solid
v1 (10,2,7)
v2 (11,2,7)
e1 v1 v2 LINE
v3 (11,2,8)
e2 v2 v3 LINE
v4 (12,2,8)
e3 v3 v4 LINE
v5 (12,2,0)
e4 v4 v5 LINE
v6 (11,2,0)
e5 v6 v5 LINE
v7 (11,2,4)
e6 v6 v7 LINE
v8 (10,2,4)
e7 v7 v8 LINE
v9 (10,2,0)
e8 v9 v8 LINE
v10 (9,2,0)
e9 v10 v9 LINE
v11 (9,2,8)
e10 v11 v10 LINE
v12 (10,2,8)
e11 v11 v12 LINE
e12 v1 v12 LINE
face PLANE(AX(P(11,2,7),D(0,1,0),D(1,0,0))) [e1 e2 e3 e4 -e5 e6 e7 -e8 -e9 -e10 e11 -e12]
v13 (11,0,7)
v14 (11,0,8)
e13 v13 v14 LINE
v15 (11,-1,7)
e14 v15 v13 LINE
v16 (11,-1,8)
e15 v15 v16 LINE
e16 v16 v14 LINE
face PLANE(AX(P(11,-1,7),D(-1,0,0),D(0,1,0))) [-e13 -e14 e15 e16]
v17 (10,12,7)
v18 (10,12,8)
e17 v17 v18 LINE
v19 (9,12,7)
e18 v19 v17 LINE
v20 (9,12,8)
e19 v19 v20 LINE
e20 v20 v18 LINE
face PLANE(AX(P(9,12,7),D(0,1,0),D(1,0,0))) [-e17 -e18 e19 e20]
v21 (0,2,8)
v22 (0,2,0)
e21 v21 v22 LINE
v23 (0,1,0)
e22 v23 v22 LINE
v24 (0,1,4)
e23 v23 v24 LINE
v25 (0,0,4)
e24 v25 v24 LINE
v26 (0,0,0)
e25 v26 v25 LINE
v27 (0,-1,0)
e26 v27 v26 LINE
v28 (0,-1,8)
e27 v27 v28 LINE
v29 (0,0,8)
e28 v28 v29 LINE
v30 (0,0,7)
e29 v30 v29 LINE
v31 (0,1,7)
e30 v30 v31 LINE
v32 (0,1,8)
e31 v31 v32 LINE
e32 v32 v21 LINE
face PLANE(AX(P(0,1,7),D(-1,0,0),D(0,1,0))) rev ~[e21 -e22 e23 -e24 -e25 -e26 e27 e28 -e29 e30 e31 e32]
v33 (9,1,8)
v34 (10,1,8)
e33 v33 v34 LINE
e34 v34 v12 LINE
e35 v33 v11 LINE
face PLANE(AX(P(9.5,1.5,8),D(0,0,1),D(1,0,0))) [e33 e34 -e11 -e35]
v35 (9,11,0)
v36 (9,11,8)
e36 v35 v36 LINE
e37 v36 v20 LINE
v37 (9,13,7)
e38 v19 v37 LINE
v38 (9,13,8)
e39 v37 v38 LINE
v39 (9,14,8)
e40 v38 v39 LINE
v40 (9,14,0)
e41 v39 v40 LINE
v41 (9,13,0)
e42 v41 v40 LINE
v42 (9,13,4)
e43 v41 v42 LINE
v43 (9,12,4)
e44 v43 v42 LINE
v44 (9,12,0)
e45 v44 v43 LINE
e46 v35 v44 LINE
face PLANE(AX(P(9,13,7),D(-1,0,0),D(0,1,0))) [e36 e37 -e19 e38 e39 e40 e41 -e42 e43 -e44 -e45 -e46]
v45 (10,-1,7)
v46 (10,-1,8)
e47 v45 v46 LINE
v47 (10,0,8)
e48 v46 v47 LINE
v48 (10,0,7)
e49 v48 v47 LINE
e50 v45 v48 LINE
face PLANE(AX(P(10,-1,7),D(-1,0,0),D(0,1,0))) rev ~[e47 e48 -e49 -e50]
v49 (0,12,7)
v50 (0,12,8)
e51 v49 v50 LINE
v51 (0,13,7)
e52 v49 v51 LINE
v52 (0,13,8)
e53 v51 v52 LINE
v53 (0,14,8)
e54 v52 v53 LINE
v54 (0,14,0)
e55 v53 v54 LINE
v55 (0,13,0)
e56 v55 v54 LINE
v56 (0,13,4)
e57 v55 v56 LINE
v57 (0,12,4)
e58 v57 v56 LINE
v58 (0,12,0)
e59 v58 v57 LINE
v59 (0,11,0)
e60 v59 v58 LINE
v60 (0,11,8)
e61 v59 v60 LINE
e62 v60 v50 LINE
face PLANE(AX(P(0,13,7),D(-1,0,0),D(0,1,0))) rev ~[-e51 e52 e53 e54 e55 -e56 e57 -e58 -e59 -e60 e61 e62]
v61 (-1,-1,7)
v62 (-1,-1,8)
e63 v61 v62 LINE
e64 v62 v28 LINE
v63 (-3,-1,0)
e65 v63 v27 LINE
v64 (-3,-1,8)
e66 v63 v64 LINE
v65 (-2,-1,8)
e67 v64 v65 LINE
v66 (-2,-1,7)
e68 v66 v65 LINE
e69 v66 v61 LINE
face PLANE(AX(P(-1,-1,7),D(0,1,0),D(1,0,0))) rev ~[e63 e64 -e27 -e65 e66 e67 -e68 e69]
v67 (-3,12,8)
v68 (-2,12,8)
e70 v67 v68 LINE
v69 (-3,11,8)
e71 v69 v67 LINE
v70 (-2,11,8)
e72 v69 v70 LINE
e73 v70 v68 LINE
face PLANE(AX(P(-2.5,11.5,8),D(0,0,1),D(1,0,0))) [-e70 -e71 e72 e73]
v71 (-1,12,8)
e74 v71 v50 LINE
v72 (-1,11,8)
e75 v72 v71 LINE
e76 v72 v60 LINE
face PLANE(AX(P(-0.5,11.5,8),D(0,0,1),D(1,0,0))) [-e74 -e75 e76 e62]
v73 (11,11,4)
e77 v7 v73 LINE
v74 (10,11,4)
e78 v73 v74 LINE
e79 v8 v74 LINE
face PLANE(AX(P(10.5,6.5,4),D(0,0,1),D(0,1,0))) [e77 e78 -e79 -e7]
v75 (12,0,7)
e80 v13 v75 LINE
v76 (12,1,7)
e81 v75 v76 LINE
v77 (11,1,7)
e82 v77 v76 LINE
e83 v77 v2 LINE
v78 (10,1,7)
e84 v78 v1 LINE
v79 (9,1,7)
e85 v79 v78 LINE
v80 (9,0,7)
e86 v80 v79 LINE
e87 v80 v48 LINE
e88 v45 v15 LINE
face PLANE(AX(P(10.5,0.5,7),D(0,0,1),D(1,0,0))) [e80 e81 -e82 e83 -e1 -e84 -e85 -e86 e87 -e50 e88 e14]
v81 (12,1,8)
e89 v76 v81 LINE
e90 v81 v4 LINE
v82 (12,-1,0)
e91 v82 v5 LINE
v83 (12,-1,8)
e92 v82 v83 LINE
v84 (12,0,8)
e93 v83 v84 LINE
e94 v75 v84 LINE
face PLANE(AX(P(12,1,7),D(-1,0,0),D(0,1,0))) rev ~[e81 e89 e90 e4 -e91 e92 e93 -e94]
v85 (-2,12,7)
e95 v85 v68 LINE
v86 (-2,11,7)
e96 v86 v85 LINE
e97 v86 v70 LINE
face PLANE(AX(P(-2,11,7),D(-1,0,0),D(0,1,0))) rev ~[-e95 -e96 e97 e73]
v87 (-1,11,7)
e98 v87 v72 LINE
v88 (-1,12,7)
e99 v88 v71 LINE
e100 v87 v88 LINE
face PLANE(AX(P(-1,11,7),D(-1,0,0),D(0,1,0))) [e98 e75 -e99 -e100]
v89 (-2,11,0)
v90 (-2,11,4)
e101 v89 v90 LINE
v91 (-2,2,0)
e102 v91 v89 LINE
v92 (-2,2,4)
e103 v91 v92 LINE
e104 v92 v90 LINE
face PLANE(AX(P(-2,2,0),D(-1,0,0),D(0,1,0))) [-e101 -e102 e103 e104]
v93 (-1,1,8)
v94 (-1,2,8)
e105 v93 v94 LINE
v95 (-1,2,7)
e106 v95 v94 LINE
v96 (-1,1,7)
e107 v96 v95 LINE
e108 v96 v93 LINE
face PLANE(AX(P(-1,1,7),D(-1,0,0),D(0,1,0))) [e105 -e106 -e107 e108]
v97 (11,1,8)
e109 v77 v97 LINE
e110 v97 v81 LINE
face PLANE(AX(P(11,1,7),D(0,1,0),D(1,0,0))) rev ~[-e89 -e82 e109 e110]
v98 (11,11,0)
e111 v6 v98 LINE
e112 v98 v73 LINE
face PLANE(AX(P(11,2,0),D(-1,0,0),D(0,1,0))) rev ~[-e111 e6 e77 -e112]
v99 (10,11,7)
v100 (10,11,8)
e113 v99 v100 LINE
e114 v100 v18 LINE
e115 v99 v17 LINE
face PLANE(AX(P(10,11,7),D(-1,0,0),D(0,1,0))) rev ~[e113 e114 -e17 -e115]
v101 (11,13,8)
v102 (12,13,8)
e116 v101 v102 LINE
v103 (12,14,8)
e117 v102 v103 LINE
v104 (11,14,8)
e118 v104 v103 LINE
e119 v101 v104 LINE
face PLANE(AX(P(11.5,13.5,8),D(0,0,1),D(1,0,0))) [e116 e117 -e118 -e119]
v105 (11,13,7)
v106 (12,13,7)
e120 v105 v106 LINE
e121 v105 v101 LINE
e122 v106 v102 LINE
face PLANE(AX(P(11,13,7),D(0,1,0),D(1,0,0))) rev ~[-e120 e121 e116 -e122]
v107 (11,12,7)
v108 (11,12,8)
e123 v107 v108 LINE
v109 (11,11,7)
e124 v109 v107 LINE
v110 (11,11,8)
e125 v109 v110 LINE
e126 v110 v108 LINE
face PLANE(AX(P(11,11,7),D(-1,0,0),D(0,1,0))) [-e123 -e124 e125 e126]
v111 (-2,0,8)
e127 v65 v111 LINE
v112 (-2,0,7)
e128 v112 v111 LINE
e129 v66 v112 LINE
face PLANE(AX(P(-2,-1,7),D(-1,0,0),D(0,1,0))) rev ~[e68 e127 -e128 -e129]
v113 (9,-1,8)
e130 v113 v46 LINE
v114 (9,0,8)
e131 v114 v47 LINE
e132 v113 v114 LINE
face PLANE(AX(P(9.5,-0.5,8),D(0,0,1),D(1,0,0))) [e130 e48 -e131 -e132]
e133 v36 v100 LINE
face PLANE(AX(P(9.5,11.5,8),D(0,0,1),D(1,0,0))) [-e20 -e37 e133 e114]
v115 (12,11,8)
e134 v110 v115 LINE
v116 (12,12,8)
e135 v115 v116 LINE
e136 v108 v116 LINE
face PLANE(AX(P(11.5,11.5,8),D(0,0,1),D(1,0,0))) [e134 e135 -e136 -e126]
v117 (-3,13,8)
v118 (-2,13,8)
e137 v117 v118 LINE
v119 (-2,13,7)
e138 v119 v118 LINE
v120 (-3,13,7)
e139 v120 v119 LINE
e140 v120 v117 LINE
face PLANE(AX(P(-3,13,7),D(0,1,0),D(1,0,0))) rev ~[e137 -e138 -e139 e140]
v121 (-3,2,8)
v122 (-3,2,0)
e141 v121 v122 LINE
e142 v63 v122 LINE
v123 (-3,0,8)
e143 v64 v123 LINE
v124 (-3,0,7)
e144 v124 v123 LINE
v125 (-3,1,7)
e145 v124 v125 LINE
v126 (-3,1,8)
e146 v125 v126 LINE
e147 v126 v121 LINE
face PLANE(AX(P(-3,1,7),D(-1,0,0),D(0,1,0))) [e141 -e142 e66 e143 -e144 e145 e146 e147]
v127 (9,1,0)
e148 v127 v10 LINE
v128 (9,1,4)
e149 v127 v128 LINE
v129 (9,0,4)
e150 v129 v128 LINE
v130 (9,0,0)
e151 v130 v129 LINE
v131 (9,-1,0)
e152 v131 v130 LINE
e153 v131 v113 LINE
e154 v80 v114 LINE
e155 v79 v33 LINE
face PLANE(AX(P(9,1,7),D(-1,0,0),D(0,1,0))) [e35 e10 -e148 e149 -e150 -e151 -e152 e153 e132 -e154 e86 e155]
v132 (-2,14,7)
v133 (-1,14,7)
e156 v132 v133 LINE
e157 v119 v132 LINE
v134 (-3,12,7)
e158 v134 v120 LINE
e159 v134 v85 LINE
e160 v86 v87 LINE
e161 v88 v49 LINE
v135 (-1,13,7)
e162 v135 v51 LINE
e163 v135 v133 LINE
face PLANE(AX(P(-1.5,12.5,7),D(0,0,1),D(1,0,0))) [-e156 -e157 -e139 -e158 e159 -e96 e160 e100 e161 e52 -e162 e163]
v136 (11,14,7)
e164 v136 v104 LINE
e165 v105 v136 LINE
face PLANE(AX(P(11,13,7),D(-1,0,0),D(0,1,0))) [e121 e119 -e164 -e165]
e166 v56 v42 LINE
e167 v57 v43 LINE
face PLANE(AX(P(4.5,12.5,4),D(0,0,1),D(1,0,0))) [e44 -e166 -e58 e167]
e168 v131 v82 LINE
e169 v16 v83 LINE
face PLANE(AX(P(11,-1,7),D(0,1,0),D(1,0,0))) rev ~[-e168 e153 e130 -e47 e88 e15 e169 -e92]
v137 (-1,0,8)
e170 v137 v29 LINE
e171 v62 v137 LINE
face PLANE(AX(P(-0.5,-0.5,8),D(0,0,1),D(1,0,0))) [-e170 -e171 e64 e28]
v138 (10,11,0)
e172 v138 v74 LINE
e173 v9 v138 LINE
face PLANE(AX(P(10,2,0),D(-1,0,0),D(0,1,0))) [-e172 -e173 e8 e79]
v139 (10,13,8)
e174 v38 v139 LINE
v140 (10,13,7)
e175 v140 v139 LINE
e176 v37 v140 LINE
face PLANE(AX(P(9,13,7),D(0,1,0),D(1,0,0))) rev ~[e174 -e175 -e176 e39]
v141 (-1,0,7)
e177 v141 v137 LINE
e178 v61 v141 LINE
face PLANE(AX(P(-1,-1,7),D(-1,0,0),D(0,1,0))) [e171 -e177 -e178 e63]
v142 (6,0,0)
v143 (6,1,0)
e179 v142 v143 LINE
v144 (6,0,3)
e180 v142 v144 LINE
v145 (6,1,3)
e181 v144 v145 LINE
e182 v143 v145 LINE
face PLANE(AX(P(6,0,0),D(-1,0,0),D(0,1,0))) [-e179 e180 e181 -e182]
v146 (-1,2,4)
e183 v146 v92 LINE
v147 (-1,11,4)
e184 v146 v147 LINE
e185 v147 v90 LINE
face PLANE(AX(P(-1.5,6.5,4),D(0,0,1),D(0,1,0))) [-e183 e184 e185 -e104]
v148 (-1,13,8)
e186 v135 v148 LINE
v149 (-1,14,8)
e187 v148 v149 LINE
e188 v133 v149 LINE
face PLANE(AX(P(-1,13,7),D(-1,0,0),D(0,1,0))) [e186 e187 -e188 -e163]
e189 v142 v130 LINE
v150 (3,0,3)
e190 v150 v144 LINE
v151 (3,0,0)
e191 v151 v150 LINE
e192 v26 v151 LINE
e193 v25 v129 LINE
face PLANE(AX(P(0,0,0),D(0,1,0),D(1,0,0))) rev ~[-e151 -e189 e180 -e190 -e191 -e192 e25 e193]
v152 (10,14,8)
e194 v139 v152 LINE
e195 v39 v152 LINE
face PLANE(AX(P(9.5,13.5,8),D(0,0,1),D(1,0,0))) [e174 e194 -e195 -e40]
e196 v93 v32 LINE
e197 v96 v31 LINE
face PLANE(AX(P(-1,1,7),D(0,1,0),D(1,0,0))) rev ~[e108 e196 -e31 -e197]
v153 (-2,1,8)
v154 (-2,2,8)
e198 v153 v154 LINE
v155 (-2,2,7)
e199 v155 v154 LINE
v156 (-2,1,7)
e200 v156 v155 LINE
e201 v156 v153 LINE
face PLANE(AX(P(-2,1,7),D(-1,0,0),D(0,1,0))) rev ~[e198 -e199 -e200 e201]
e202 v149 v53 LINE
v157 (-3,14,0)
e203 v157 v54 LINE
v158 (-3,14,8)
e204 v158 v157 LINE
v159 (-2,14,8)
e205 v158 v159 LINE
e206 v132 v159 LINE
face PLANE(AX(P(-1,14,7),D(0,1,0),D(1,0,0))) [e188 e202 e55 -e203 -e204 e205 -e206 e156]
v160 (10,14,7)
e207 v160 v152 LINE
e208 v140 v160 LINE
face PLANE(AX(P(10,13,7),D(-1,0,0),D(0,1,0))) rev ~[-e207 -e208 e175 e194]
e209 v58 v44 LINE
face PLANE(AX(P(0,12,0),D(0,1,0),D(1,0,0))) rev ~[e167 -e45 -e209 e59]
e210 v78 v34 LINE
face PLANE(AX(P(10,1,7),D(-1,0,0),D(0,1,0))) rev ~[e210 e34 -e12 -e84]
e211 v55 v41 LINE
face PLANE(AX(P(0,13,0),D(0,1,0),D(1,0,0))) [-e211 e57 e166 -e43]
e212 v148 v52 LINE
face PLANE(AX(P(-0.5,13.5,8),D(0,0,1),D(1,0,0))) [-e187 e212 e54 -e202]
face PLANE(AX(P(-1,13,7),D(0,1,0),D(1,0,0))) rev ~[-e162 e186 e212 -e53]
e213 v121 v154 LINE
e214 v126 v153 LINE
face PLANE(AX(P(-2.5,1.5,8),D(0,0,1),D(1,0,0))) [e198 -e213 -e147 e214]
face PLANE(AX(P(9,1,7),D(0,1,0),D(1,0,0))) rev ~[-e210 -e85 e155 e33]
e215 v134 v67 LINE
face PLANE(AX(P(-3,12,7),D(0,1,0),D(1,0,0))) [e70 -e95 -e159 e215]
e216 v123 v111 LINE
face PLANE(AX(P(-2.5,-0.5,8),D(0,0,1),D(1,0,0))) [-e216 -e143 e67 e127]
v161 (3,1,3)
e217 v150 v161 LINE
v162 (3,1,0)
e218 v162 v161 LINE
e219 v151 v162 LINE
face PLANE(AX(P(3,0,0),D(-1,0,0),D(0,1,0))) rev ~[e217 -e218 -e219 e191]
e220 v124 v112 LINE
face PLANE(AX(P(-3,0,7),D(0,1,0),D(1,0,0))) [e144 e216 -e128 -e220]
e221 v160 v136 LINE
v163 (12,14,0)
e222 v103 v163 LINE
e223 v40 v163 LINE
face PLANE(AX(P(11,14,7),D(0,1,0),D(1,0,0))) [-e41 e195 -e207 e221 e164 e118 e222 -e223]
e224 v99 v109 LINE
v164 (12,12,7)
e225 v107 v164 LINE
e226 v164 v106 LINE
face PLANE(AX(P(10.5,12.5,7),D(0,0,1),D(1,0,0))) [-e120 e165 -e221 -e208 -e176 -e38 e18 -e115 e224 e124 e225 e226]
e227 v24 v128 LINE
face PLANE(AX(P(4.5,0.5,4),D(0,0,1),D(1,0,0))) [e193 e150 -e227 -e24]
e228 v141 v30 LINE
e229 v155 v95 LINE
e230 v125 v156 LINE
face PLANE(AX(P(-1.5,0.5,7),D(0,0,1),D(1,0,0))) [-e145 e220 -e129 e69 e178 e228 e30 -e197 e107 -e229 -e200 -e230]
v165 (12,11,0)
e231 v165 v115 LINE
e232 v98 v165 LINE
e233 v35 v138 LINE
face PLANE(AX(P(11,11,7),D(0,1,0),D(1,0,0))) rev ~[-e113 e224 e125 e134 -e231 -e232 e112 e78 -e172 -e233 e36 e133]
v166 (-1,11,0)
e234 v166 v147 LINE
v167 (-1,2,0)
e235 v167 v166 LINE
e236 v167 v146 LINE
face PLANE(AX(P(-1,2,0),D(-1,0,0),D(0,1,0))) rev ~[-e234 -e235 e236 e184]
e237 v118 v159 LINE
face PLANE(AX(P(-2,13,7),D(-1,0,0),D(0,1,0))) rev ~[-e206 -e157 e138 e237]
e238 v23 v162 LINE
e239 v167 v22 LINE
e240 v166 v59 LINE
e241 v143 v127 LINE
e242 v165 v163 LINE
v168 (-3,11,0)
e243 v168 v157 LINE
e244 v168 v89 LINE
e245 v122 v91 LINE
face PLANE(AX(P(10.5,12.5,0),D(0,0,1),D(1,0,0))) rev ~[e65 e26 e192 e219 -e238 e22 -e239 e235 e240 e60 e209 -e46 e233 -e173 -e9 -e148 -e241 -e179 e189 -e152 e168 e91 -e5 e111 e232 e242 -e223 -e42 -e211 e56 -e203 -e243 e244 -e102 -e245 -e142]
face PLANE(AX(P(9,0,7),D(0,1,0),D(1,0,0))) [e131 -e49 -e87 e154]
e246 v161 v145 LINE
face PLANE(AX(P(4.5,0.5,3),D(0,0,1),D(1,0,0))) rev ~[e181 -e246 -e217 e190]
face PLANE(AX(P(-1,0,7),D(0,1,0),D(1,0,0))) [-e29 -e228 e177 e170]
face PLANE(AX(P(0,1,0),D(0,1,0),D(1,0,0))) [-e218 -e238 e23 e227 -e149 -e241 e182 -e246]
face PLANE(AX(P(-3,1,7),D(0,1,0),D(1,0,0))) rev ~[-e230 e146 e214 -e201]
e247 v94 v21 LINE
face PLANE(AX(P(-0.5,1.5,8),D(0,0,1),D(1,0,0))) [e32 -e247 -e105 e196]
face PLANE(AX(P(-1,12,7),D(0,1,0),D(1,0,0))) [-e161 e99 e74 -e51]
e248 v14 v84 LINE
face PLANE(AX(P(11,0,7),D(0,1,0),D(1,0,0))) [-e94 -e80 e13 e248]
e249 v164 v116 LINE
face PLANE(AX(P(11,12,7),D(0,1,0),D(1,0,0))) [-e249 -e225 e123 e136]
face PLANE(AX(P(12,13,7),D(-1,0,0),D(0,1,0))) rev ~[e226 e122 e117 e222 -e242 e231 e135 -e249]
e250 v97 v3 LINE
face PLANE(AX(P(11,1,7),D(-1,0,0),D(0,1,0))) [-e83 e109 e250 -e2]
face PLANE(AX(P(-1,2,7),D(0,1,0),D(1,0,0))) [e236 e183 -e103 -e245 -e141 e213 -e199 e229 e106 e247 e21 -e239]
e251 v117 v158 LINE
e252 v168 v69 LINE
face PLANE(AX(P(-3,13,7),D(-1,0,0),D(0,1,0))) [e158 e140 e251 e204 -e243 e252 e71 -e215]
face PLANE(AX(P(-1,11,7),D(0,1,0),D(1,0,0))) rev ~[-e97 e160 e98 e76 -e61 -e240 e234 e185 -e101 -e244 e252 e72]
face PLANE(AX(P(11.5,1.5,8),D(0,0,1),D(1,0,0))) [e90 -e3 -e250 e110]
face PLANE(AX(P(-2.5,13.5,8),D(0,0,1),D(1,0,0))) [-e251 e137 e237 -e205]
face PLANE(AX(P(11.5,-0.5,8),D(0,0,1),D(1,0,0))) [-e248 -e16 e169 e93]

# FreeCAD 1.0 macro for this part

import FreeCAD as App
import Part
import Sketcher
from FreeCAD import Vector


def add_polygon(sketch, points):
    """Adds a closed chain of lines whose ends are joined by coincident constraints."""
    first, n = sketch.GeometryCount, len(points)
    for a, b in zip(points, points[1:] + points[:1]):
        sketch.addGeometry(Part.LineSegment(App.Vector(*a, 0), App.Vector(*b, 0)), False)
    for i in range(n):
        sketch.addConstraint(Sketcher.Constraint("Coincident", first + i, 2, first + (i + 1) % n, 1))

doc = App.newDocument("Part")
body = doc.addObject("PartDesign::Body", "Body")

# Sketch on XY plane
sketch1 = body.newObject("Sketcher::SketchObject", "Sketch")
sketch1.AttachmentSupport = (doc.getObject("XY_Plane"), [""])
sketch1.MapMode = "FlatFace"
sketch1.AttachmentOffset = App.Placement(Vector(0, 0, 7), App.Rotation())
add_polygon(sketch1, [(-1, 2), (-1, 1), (0, 1), (0, 2)])  # lines 0-3
sketch1.addConstraint(Sketcher.Constraint("Vertical", 0))
sketch1.addConstraint(Sketcher.Constraint("Horizontal", 1))
sketch1.addConstraint(Sketcher.Constraint("Vertical", 2))
sketch1.addConstraint(Sketcher.Constraint("Horizontal", 3))
sketch1.addConstraint(Sketcher.Constraint("PointOnObject", 1, 2, -2))
sketch1.addConstraint(Sketcher.Constraint("Equal", 3, 0))
sketch1.addConstraint(Sketcher.Constraint("DistanceX", 1, 1, 1, 2, 1.0))
sketch1.addConstraint(Sketcher.Constraint("DistanceY", -1, 1, 0, 2, 1.0))
pad1 = body.newObject("PartDesign::Pad", "Pad")
pad1.Profile = sketch1
pad1.Length = 1
body2 = doc.addObject("PartDesign::Body", "Body001")

# Sketch on XY plane
sketch2 = body2.newObject("Sketcher::SketchObject", "Sketch001")
sketch2.AttachmentSupport = (doc.getObject("XY_Plane001"), [""])
sketch2.MapMode = "FlatFace"
sketch2.AttachmentOffset = App.Placement(Vector(0, 0, 7), App.Rotation())
add_polygon(sketch2, [(-1, 0), (-1, -1), (0, -1), (0, 0)])  # lines 0-3
sketch2.addConstraint(Sketcher.Constraint("Vertical", 0))
sketch2.addConstraint(Sketcher.Constraint("Horizontal", 1))
sketch2.addConstraint(Sketcher.Constraint("Vertical", 2))
sketch2.addConstraint(Sketcher.Constraint("Horizontal", 3))
sketch2.addConstraint(Sketcher.Constraint("Coincident", 2, 2, -1, 1))
sketch2.addConstraint(Sketcher.Constraint("Equal", 3, 0))
sketch2.addConstraint(Sketcher.Constraint("DistanceX", 1, 1, 1, 2, 1.0))
pad2 = body2.newObject("PartDesign::Pad", "Pad001")
pad2.Profile = sketch2
pad2.Length = 1
body3 = doc.addObject("PartDesign::Body", "Body002")

# Sketch on XY plane
sketch3 = body3.newObject("Sketcher::SketchObject", "Sketch002")
sketch3.AttachmentSupport = (doc.getObject("XY_Plane002"), [""])
sketch3.MapMode = "FlatFace"
sketch3.AttachmentOffset = App.Placement(Vector(0, 0, 7), App.Rotation())
add_polygon(sketch3, [(-3, 2), (-3, 1), (-2, 1), (-2, 2)])  # lines 0-3
sketch3.addConstraint(Sketcher.Constraint("Vertical", 0))
sketch3.addConstraint(Sketcher.Constraint("Horizontal", 1))
sketch3.addConstraint(Sketcher.Constraint("Vertical", 2))
sketch3.addConstraint(Sketcher.Constraint("Horizontal", 3))
sketch3.addConstraint(Sketcher.Constraint("Equal", 3, 0))
sketch3.addConstraint(Sketcher.Constraint("DistanceX", 1, 1, 1, 2, 1.0))
sketch3.addConstraint(Sketcher.Constraint("DistanceX", 0, 2, -1, 1, 3.0))
sketch3.addConstraint(Sketcher.Constraint("DistanceY", -1, 1, 0, 2, 1.0))
pad3 = body3.newObject("PartDesign::Pad", "Pad002")
pad3.Profile = sketch3
pad3.Length = 1
body4 = doc.addObject("PartDesign::Body", "Body003")

# Sketch on XY plane
sketch4 = body4.newObject("Sketcher::SketchObject", "Sketch003")
sketch4.AttachmentSupport = (doc.getObject("XY_Plane003"), [""])
sketch4.MapMode = "FlatFace"
sketch4.AttachmentOffset = App.Placement(Vector(0, 0, 7), App.Rotation())
add_polygon(sketch4, [(-3, 0), (-3, -1), (-2, -1), (-2, 0)])  # lines 0-3
sketch4.addConstraint(Sketcher.Constraint("Vertical", 0))
sketch4.addConstraint(Sketcher.Constraint("Horizontal", 1))
sketch4.addConstraint(Sketcher.Constraint("Vertical", 2))
sketch4.addConstraint(Sketcher.Constraint("Horizontal", 3))
sketch4.addConstraint(Sketcher.Constraint("PointOnObject", 2, 2, -1))
sketch4.addConstraint(Sketcher.Constraint("Equal", 3, 0))
sketch4.addConstraint(Sketcher.Constraint("DistanceX", 1, 1, 1, 2, 1.0))
sketch4.addConstraint(Sketcher.Constraint("DistanceX", 0, 2, -1, 1, 3.0))
pad4 = body4.newObject("PartDesign::Pad", "Pad003")
pad4.Profile = sketch4
pad4.Length = 1
body5 = doc.addObject("PartDesign::Body", "Body004")

# Sketch on XY plane
sketch5 = body5.newObject("Sketcher::SketchObject", "Sketch004")
sketch5.AttachmentSupport = (doc.getObject("XY_Plane004"), [""])
sketch5.MapMode = "FlatFace"
add_polygon(sketch5, [(-3, 2), (-3, -1), (0, -1), (0, 2)])  # lines 0-3
sketch5.addConstraint(Sketcher.Constraint("Vertical", 0))
sketch5.addConstraint(Sketcher.Constraint("Horizontal", 1))
sketch5.addConstraint(Sketcher.Constraint("Vertical", 2))
sketch5.addConstraint(Sketcher.Constraint("Horizontal", 3))
sketch5.addConstraint(Sketcher.Constraint("PointOnObject", 1, 2, -2))
sketch5.addConstraint(Sketcher.Constraint("Equal", 3, 0))
sketch5.addConstraint(Sketcher.Constraint("DistanceX", 1, 1, 1, 2, 3.0))
sketch5.addConstraint(Sketcher.Constraint("DistanceY", 0, 2, -1, 1, 1.0))
pad5 = body5.newObject("PartDesign::Pad", "Pad004")
pad5.Profile = sketch5
pad5.Length = 7
doc.recompute()

boolean = body5.newObject("PartDesign::Boolean", "Boolean")
boolean.Type = "Fuse"
boolean.addObjects([body4])
doc.recompute()

boolean2 = body5.newObject("PartDesign::Boolean", "Boolean001")
boolean2.Type = "Fuse"
boolean2.addObjects([body3])
doc.recompute()

boolean3 = body5.newObject("PartDesign::Boolean", "Boolean002")
boolean3.Type = "Fuse"
boolean3.addObjects([body2])
doc.recompute()

boolean4 = body5.newObject("PartDesign::Boolean", "Boolean003")
boolean4.Type = "Fuse"
boolean4.addObjects([body])
body6 = doc.addObject("PartDesign::Body", "Body005")
doc.recompute()

body5.Placement = App.Placement(Vector(12, 12, 0), App.Rotation(Vector(0, 0, 1), 0))
boolean5 = body6.newObject("PartDesign::Boolean", "Boolean004")
boolean5.Type = "Fuse"
boolean5.addObjects([body5])
body7 = doc.addObject("PartDesign::Body", "Body006")

# Sketch on XY plane
sketch6 = body7.newObject("Sketcher::SketchObject", "Sketch005")
sketch6.AttachmentSupport = (doc.getObject("XY_Plane006"), [""])
sketch6.MapMode = "FlatFace"
add_polygon(sketch6, [(0, 13), (0, 12), (9, 12), (9, 13)])  # lines 0-3
sketch6.addConstraint(Sketcher.Constraint("Vertical", 0))
sketch6.addConstraint(Sketcher.Constraint("Horizontal", 1))
sketch6.addConstraint(Sketcher.Constraint("Vertical", 2))
sketch6.addConstraint(Sketcher.Constraint("Horizontal", 3))
sketch6.addConstraint(Sketcher.Constraint("PointOnObject", 0, 2, -2))
sketch6.addConstraint(Sketcher.Constraint("DistanceX", 1, 1, 1, 2, 9.0))
sketch6.addConstraint(Sketcher.Constraint("DistanceY", 0, 2, 0, 1, 1.0))
sketch6.addConstraint(Sketcher.Constraint("DistanceY", -1, 1, 0, 2, 12.0))
pad6 = body7.newObject("PartDesign::Pad", "Pad005")
pad6.Profile = sketch6
pad6.Length = 4
body8 = doc.addObject("PartDesign::Body", "Body007")

# Sketch on XY plane
sketch7 = body8.newObject("Sketcher::SketchObject", "Sketch006")
sketch7.AttachmentSupport = (doc.getObject("XY_Plane007"), [""])
sketch7.MapMode = "FlatFace"
sketch7.AttachmentOffset = App.Placement(Vector(0, 0, 7), App.Rotation())
add_polygon(sketch7, [(-1, 2), (-1, 1), (0, 1), (0, 2)])  # lines 0-3
sketch7.addConstraint(Sketcher.Constraint("Vertical", 0))
sketch7.addConstraint(Sketcher.Constraint("Horizontal", 1))
sketch7.addConstraint(Sketcher.Constraint("Vertical", 2))
sketch7.addConstraint(Sketcher.Constraint("Horizontal", 3))
sketch7.addConstraint(Sketcher.Constraint("PointOnObject", 1, 2, -2))
sketch7.addConstraint(Sketcher.Constraint("Equal", 3, 0))
sketch7.addConstraint(Sketcher.Constraint("DistanceX", 1, 1, 1, 2, 1.0))
sketch7.addConstraint(Sketcher.Constraint("DistanceY", -1, 1, 0, 2, 1.0))
pad7 = body8.newObject("PartDesign::Pad", "Pad006")
pad7.Profile = sketch7
pad7.Length = 1
body9 = doc.addObject("PartDesign::Body", "Body008")

# Sketch on XY plane
sketch8 = body9.newObject("Sketcher::SketchObject", "Sketch007")
sketch8.AttachmentSupport = (doc.getObject("XY_Plane008"), [""])
sketch8.MapMode = "FlatFace"
sketch8.AttachmentOffset = App.Placement(Vector(0, 0, 7), App.Rotation())
add_polygon(sketch8, [(-1, 0), (-1, -1), (0, -1), (0, 0)])  # lines 0-3
sketch8.addConstraint(Sketcher.Constraint("Vertical", 0))
sketch8.addConstraint(Sketcher.Constraint("Horizontal", 1))
sketch8.addConstraint(Sketcher.Constraint("Vertical", 2))
sketch8.addConstraint(Sketcher.Constraint("Horizontal", 3))
sketch8.addConstraint(Sketcher.Constraint("Coincident", 2, 2, -1, 1))
sketch8.addConstraint(Sketcher.Constraint("Equal", 3, 0))
sketch8.addConstraint(Sketcher.Constraint("DistanceX", 1, 1, 1, 2, 1.0))
pad8 = body9.newObject("PartDesign::Pad", "Pad007")
pad8.Profile = sketch8
pad8.Length = 1
body10 = doc.addObject("PartDesign::Body", "Body009")

# Sketch on XY plane
sketch9 = body10.newObject("Sketcher::SketchObject", "Sketch008")
sketch9.AttachmentSupport = (doc.getObject("XY_Plane009"), [""])
sketch9.MapMode = "FlatFace"
sketch9.AttachmentOffset = App.Placement(Vector(0, 0, 7), App.Rotation())
add_polygon(sketch9, [(-3, 2), (-3, 1), (-2, 1), (-2, 2)])  # lines 0-3
sketch9.addConstraint(Sketcher.Constraint("Vertical", 0))
sketch9.addConstraint(Sketcher.Constraint("Horizontal", 1))
sketch9.addConstraint(Sketcher.Constraint("Vertical", 2))
sketch9.addConstraint(Sketcher.Constraint("Horizontal", 3))
sketch9.addConstraint(Sketcher.Constraint("Equal", 3, 0))
sketch9.addConstraint(Sketcher.Constraint("DistanceX", 1, 1, 1, 2, 1.0))
sketch9.addConstraint(Sketcher.Constraint("DistanceX", 0, 2, -1, 1, 3.0))
sketch9.addConstraint(Sketcher.Constraint("DistanceY", -1, 1, 0, 2, 1.0))
pad9 = body10.newObject("PartDesign::Pad", "Pad008")
pad9.Profile = sketch9
pad9.Length = 1
body11 = doc.addObject("PartDesign::Body", "Body010")

# Sketch on XY plane
sketch10 = body11.newObject("Sketcher::SketchObject", "Sketch009")
sketch10.AttachmentSupport = (doc.getObject("XY_Plane010"), [""])
sketch10.MapMode = "FlatFace"
sketch10.AttachmentOffset = App.Placement(Vector(0, 0, 7), App.Rotation())
add_polygon(sketch10, [(-3, 0), (-3, -1), (-2, -1), (-2, 0)])  # lines 0-3
sketch10.addConstraint(Sketcher.Constraint("Vertical", 0))
sketch10.addConstraint(Sketcher.Constraint("Horizontal", 1))
sketch10.addConstraint(Sketcher.Constraint("Vertical", 2))
sketch10.addConstraint(Sketcher.Constraint("Horizontal", 3))
sketch10.addConstraint(Sketcher.Constraint("PointOnObject", 2, 2, -1))
sketch10.addConstraint(Sketcher.Constraint("Equal", 3, 0))
sketch10.addConstraint(Sketcher.Constraint("DistanceX", 1, 1, 1, 2, 1.0))
sketch10.addConstraint(Sketcher.Constraint("DistanceX", 0, 2, -1, 1, 3.0))
pad10 = body11.newObject("PartDesign::Pad", "Pad009")
pad10.Profile = sketch10
pad10.Length = 1
body12 = doc.addObject("PartDesign::Body", "Body011")

# Sketch on XY plane
sketch11 = body12.newObject("Sketcher::SketchObject", "Sketch010")
sketch11.AttachmentSupport = (doc.getObject("XY_Plane011"), [""])
sketch11.MapMode = "FlatFace"
add_polygon(sketch11, [(-3, 2), (-3, -1), (0, -1), (0, 2)])  # lines 0-3
sketch11.addConstraint(Sketcher.Constraint("Vertical", 0))
sketch11.addConstraint(Sketcher.Constraint("Horizontal", 1))
sketch11.addConstraint(Sketcher.Constraint("Vertical", 2))
sketch11.addConstraint(Sketcher.Constraint("Horizontal", 3))
sketch11.addConstraint(Sketcher.Constraint("PointOnObject", 1, 2, -2))
sketch11.addConstraint(Sketcher.Constraint("Equal", 3, 0))
sketch11.addConstraint(Sketcher.Constraint("DistanceX", 1, 1, 1, 2, 3.0))
sketch11.addConstraint(Sketcher.Constraint("DistanceY", 0, 2, -1, 1, 1.0))
pad11 = body12.newObject("PartDesign::Pad", "Pad010")
pad11.Profile = sketch11
pad11.Length = 7
doc.recompute()

boolean6 = body12.newObject("PartDesign::Boolean", "Boolean005")
boolean6.Type = "Fuse"
boolean6.addObjects([body11])
doc.recompute()

boolean7 = body12.newObject("PartDesign::Boolean", "Boolean006")
boolean7.Type = "Fuse"
boolean7.addObjects([body10])
doc.recompute()

boolean8 = body12.newObject("PartDesign::Boolean", "Boolean007")
boolean8.Type = "Fuse"
boolean8.addObjects([body9])
doc.recompute()

boolean9 = body12.newObject("PartDesign::Boolean", "Boolean008")
boolean9.Type = "Fuse"
boolean9.addObjects([body8])
body13 = doc.addObject("PartDesign::Body", "Body012")
doc.recompute()

body12.Placement = App.Placement(Vector(0, 12, 0), App.Rotation(Vector(0, 0, 1), 0))
boolean10 = body13.newObject("PartDesign::Boolean", "Boolean009")
boolean10.Type = "Fuse"
boolean10.addObjects([body12])
body14 = doc.addObject("PartDesign::Body", "Body013")

# Sketch on XY plane
sketch12 = body14.newObject("Sketcher::SketchObject", "Sketch011")
sketch12.AttachmentSupport = (doc.getObject("XY_Plane013"), [""])
sketch12.MapMode = "FlatFace"
add_polygon(sketch12, [(-2, 2), (-1, 2), (-1, 11), (-2, 11)])  # lines 0-3
sketch12.addConstraint(Sketcher.Constraint("Horizontal", 0))
sketch12.addConstraint(Sketcher.Constraint("Vertical", 1))
sketch12.addConstraint(Sketcher.Constraint("Horizontal", 2))
sketch12.addConstraint(Sketcher.Constraint("Vertical", 3))
sketch12.addConstraint(Sketcher.Constraint("DistanceX", 0, 1, 0, 2, 1.0))
sketch12.addConstraint(Sketcher.Constraint("DistanceY", 1, 1, 1, 2, 9.0))
sketch12.addConstraint(Sketcher.Constraint("DistanceX", 0, 2, -1, 1, 1.0))
sketch12.addConstraint(Sketcher.Constraint("DistanceY", -1, 1, 0, 2, 2.0))
pad12 = body14.newObject("PartDesign::Pad", "Pad011")
pad12.Profile = sketch12
pad12.Length = 4
body15 = doc.addObject("PartDesign::Body", "Body014")

# Sketch on XY plane
sketch13 = body15.newObject("Sketcher::SketchObject", "Sketch012")
sketch13.AttachmentSupport = (doc.getObject("XY_Plane014"), [""])
sketch13.MapMode = "FlatFace"
add_polygon(sketch13, [(10, 2), (11, 2), (11, 11), (10, 11)])  # lines 0-3
sketch13.addConstraint(Sketcher.Constraint("Horizontal", 0))
sketch13.addConstraint(Sketcher.Constraint("Vertical", 1))
sketch13.addConstraint(Sketcher.Constraint("Horizontal", 2))
sketch13.addConstraint(Sketcher.Constraint("Vertical", 3))
sketch13.addConstraint(Sketcher.Constraint("DistanceX", 0, 1, 0, 2, 1.0))
sketch13.addConstraint(Sketcher.Constraint("DistanceY", 1, 1, 1, 2, 9.0))
sketch13.addConstraint(Sketcher.Constraint("DistanceX", -1, 1, 0, 2, 11.0))
sketch13.addConstraint(Sketcher.Constraint("DistanceY", -1, 1, 0, 2, 2.0))
pad13 = body15.newObject("PartDesign::Pad", "Pad012")
pad13.Profile = sketch13
pad13.Length = 4
body16 = doc.addObject("PartDesign::Body", "Body015")

# Sketch on XY plane
sketch14 = body16.newObject("Sketcher::SketchObject", "Sketch013")
sketch14.AttachmentSupport = (doc.getObject("XY_Plane015"), [""])
sketch14.MapMode = "FlatFace"
sketch14.AttachmentOffset = App.Placement(Vector(0, 0, 7), App.Rotation())
add_polygon(sketch14, [(-1, 2), (-1, 1), (0, 1), (0, 2)])  # lines 0-3
sketch14.addConstraint(Sketcher.Constraint("Vertical", 0))
sketch14.addConstraint(Sketcher.Constraint("Horizontal", 1))
sketch14.addConstraint(Sketcher.Constraint("Vertical", 2))
sketch14.addConstraint(Sketcher.Constraint("Horizontal", 3))
sketch14.addConstraint(Sketcher.Constraint("PointOnObject", 1, 2, -2))
sketch14.addConstraint(Sketcher.Constraint("Equal", 3, 0))
sketch14.addConstraint(Sketcher.Constraint("DistanceX", 1, 1, 1, 2, 1.0))
sketch14.addConstraint(Sketcher.Constraint("DistanceY", -1, 1, 0, 2, 1.0))
pad14 = body16.newObject("PartDesign::Pad", "Pad013")
pad14.Profile = sketch14
pad14.Length = 1
body17 = doc.addObject("PartDesign::Body", "Body016")

# Sketch on XY plane
sketch15 = body17.newObject("Sketcher::SketchObject", "Sketch014")
sketch15.AttachmentSupport = (doc.getObject("XY_Plane016"), [""])
sketch15.MapMode = "FlatFace"
sketch15.AttachmentOffset = App.Placement(Vector(0, 0, 7), App.Rotation())
add_polygon(sketch15, [(-1, 0), (-1, -1), (0, -1), (0, 0)])  # lines 0-3
sketch15.addConstraint(Sketcher.Constraint("Vertical", 0))
sketch15.addConstraint(Sketcher.Constraint("Horizontal", 1))
sketch15.addConstraint(Sketcher.Constraint("Vertical", 2))
sketch15.addConstraint(Sketcher.Constraint("Horizontal", 3))
sketch15.addConstraint(Sketcher.Constraint("Coincident", 2, 2, -1, 1))
sketch15.addConstraint(Sketcher.Constraint("Equal", 3, 0))
sketch15.addConstraint(Sketcher.Constraint("DistanceX", 1, 1, 1, 2, 1.0))
pad15 = body17.newObject("PartDesign::Pad", "Pad014")
pad15.Profile = sketch15
pad15.Length = 1
body18 = doc.addObject("PartDesign::Body", "Body017")

# Sketch on XY plane
sketch16 = body18.newObject("Sketcher::SketchObject", "Sketch015")
sketch16.AttachmentSupport = (doc.getObject("XY_Plane017"), [""])
sketch16.MapMode = "FlatFace"
sketch16.AttachmentOffset = App.Placement(Vector(0, 0, 7), App.Rotation())
add_polygon(sketch16, [(-3, 2), (-3, 1), (-2, 1), (-2, 2)])  # lines 0-3
sketch16.addConstraint(Sketcher.Constraint("Vertical", 0))
sketch16.addConstraint(Sketcher.Constraint("Horizontal", 1))
sketch16.addConstraint(Sketcher.Constraint("Vertical", 2))
sketch16.addConstraint(Sketcher.Constraint("Horizontal", 3))
sketch16.addConstraint(Sketcher.Constraint("Equal", 3, 0))
sketch16.addConstraint(Sketcher.Constraint("DistanceX", 1, 1, 1, 2, 1.0))
sketch16.addConstraint(Sketcher.Constraint("DistanceX", 0, 2, -1, 1, 3.0))
sketch16.addConstraint(Sketcher.Constraint("DistanceY", -1, 1, 0, 2, 1.0))
pad16 = body18.newObject("PartDesign::Pad", "Pad015")
pad16.Profile = sketch16
pad16.Length = 1
body19 = doc.addObject("PartDesign::Body", "Body018")

# Sketch on XY plane
sketch17 = body19.newObject("Sketcher::SketchObject", "Sketch016")
sketch17.AttachmentSupport = (doc.getObject("XY_Plane018"), [""])
sketch17.MapMode = "FlatFace"
sketch17.AttachmentOffset = App.Placement(Vector(0, 0, 7), App.Rotation())
add_polygon(sketch17, [(-3, 0), (-3, -1), (-2, -1), (-2, 0)])  # lines 0-3
sketch17.addConstraint(Sketcher.Constraint("Vertical", 0))
sketch17.addConstraint(Sketcher.Constraint("Horizontal", 1))
sketch17.addConstraint(Sketcher.Constraint("Vertical", 2))
sketch17.addConstraint(Sketcher.Constraint("Horizontal", 3))
sketch17.addConstraint(Sketcher.Constraint("PointOnObject", 2, 2, -1))
sketch17.addConstraint(Sketcher.Constraint("Equal", 3, 0))
sketch17.addConstraint(Sketcher.Constraint("DistanceX", 1, 1, 1, 2, 1.0))
sketch17.addConstraint(Sketcher.Constraint("DistanceX", 0, 2, -1, 1, 3.0))
pad17 = body19.newObject("PartDesign::Pad", "Pad016")
pad17.Profile = sketch17
pad17.Length = 1
body20 = doc.addObject("PartDesign::Body", "Body019")

# Sketch on XY plane
sketch18 = body20.newObject("Sketcher::SketchObject", "Sketch017")
sketch18.AttachmentSupport = (doc.getObject("XY_Plane019"), [""])
sketch18.MapMode = "FlatFace"
add_polygon(sketch18, [(-3, 2), (-3, -1), (0, -1), (0, 2)])  # lines 0-3
sketch18.addConstraint(Sketcher.Constraint("Vertical", 0))
sketch18.addConstraint(Sketcher.Constraint("Horizontal", 1))
sketch18.addConstraint(Sketcher.Constraint("Vertical", 2))
sketch18.addConstraint(Sketcher.Constraint("Horizontal", 3))
sketch18.addConstraint(Sketcher.Constraint("PointOnObject", 1, 2, -2))
sketch18.addConstraint(Sketcher.Constraint("Equal", 3, 0))
sketch18.addConstraint(Sketcher.Constraint("DistanceX", 1, 1, 1, 2, 3.0))
sketch18.addConstraint(Sketcher.Constraint("DistanceY", 0, 2, -1, 1, 1.0))
pad18 = body20.newObject("PartDesign::Pad", "Pad017")
pad18.Profile = sketch18
pad18.Length = 7
doc.recompute()

boolean11 = body20.newObject("PartDesign::Boolean", "Boolean010")
boolean11.Type = "Fuse"
boolean11.addObjects([body19])
doc.recompute()

boolean12 = body20.newObject("PartDesign::Boolean", "Boolean011")
boolean12.Type = "Fuse"
boolean12.addObjects([body18])
doc.recompute()

boolean13 = body20.newObject("PartDesign::Boolean", "Boolean012")
boolean13.Type = "Fuse"
boolean13.addObjects([body17])
doc.recompute()

boolean14 = body20.newObject("PartDesign::Boolean", "Boolean013")
boolean14.Type = "Fuse"
boolean14.addObjects([body16])
body21 = doc.addObject("PartDesign::Body", "Body020")
doc.recompute()

body20.Placement = App.Placement(Vector(12, 0, 0), App.Rotation(Vector(0, 0, 1), 0))
boolean15 = body21.newObject("PartDesign::Boolean", "Boolean014")
boolean15.Type = "Fuse"
boolean15.addObjects([body20])
body22 = doc.addObject("PartDesign::Body", "Body021")

# Sketch on XY plane
sketch19 = body22.newObject("Sketcher::SketchObject", "Sketch018")
sketch19.AttachmentSupport = (doc.getObject("XY_Plane021"), [""])
sketch19.MapMode = "FlatFace"
sketch19.AttachmentOffset = App.Placement(Vector(0, 0, 7), App.Rotation())
add_polygon(sketch19, [(-1, 2), (-1, 1), (0, 1), (0, 2)])  # lines 0-3
sketch19.addConstraint(Sketcher.Constraint("Vertical", 0))
sketch19.addConstraint(Sketcher.Constraint("Horizontal", 1))
sketch19.addConstraint(Sketcher.Constraint("Vertical", 2))
sketch19.addConstraint(Sketcher.Constraint("Horizontal", 3))
sketch19.addConstraint(Sketcher.Constraint("PointOnObject", 1, 2, -2))
sketch19.addConstraint(Sketcher.Constraint("Equal", 3, 0))
sketch19.addConstraint(Sketcher.Constraint("DistanceX", 1, 1, 1, 2, 1.0))
sketch19.addConstraint(Sketcher.Constraint("DistanceY", -1, 1, 0, 2, 1.0))
pad19 = body22.newObject("PartDesign::Pad", "Pad018")
pad19.Profile = sketch19
pad19.Length = 1
body23 = doc.addObject("PartDesign::Body", "Body022")

# Sketch on XY plane
sketch20 = body23.newObject("Sketcher::SketchObject", "Sketch019")
sketch20.AttachmentSupport = (doc.getObject("XY_Plane022"), [""])
sketch20.MapMode = "FlatFace"
sketch20.AttachmentOffset = App.Placement(Vector(0, 0, 7), App.Rotation())
add_polygon(sketch20, [(-1, 0), (-1, -1), (0, -1), (0, 0)])  # lines 0-3
sketch20.addConstraint(Sketcher.Constraint("Vertical", 0))
sketch20.addConstraint(Sketcher.Constraint("Horizontal", 1))
sketch20.addConstraint(Sketcher.Constraint("Vertical", 2))
sketch20.addConstraint(Sketcher.Constraint("Horizontal", 3))
sketch20.addConstraint(Sketcher.Constraint("Coincident", 2, 2, -1, 1))
sketch20.addConstraint(Sketcher.Constraint("Equal", 3, 0))
sketch20.addConstraint(Sketcher.Constraint("DistanceX", 1, 1, 1, 2, 1.0))
pad20 = body23.newObject("PartDesign::Pad", "Pad019")
pad20.Profile = sketch20
pad20.Length = 1
body24 = doc.addObject("PartDesign::Body", "Body023")

# Sketch on XY plane
sketch21 = body24.newObject("Sketcher::SketchObject", "Sketch020")
sketch21.AttachmentSupport = (doc.getObject("XY_Plane023"), [""])
sketch21.MapMode = "FlatFace"
sketch21.AttachmentOffset = App.Placement(Vector(0, 0, 7), App.Rotation())
add_polygon(sketch21, [(-3, 2), (-3, 1), (-2, 1), (-2, 2)])  # lines 0-3
sketch21.addConstraint(Sketcher.Constraint("Vertical", 0))
sketch21.addConstraint(Sketcher.Constraint("Horizontal", 1))
sketch21.addConstraint(Sketcher.Constraint("Vertical", 2))
sketch21.addConstraint(Sketcher.Constraint("Horizontal", 3))
sketch21.addConstraint(Sketcher.Constraint("Equal", 3, 0))
sketch21.addConstraint(Sketcher.Constraint("DistanceX", 1, 1, 1, 2, 1.0))
sketch21.addConstraint(Sketcher.Constraint("DistanceX", 0, 2, -1, 1, 3.0))
sketch21.addConstraint(Sketcher.Constraint("DistanceY", -1, 1, 0, 2, 1.0))
pad21 = body24.newObject("PartDesign::Pad", "Pad020")
pad21.Profile = sketch21
pad21.Length = 1
body25 = doc.addObject("PartDesign::Body", "Body024")

# Sketch on XY plane
sketch22 = body25.newObject("Sketcher::SketchObject", "Sketch021")
sketch22.AttachmentSupport = (doc.getObject("XY_Plane024"), [""])
sketch22.MapMode = "FlatFace"
sketch22.AttachmentOffset = App.Placement(Vector(0, 0, 7), App.Rotation())
add_polygon(sketch22, [(-3, 0), (-3, -1), (-2, -1), (-2, 0)])  # lines 0-3
sketch22.addConstraint(Sketcher.Constraint("Vertical", 0))
sketch22.addConstraint(Sketcher.Constraint("Horizontal", 1))
sketch22.addConstraint(Sketcher.Constraint("Vertical", 2))
sketch22.addConstraint(Sketcher.Constraint("Horizontal", 3))
sketch22.addConstraint(Sketcher.Constraint("PointOnObject", 2, 2, -1))
sketch22.addConstraint(Sketcher.Constraint("Equal", 3, 0))
sketch22.addConstraint(Sketcher.Constraint("DistanceX", 1, 1, 1, 2, 1.0))
sketch22.addConstraint(Sketcher.Constraint("DistanceX", 0, 2, -1, 1, 3.0))
pad22 = body25.newObject("PartDesign::Pad", "Pad021")
pad22.Profile = sketch22
pad22.Length = 1
body26 = doc.addObject("PartDesign::Body", "Body025")

# Sketch on XY plane
sketch23 = body26.newObject("Sketcher::SketchObject", "Sketch022")
sketch23.AttachmentSupport = (doc.getObject("XY_Plane025"), [""])
sketch23.MapMode = "FlatFace"
add_polygon(sketch23, [(-3, 2), (-3, -1), (0, -1), (0, 2)])  # lines 0-3
sketch23.addConstraint(Sketcher.Constraint("Vertical", 0))
sketch23.addConstraint(Sketcher.Constraint("Horizontal", 1))
sketch23.addConstraint(Sketcher.Constraint("Vertical", 2))
sketch23.addConstraint(Sketcher.Constraint("Horizontal", 3))
sketch23.addConstraint(Sketcher.Constraint("PointOnObject", 1, 2, -2))
sketch23.addConstraint(Sketcher.Constraint("Equal", 3, 0))
sketch23.addConstraint(Sketcher.Constraint("DistanceX", 1, 1, 1, 2, 3.0))
sketch23.addConstraint(Sketcher.Constraint("DistanceY", 0, 2, -1, 1, 1.0))
pad23 = body26.newObject("PartDesign::Pad", "Pad022")
pad23.Profile = sketch23
pad23.Length = 7
doc.recompute()

boolean16 = body26.newObject("PartDesign::Boolean", "Boolean015")
boolean16.Type = "Fuse"
boolean16.addObjects([body25])
doc.recompute()

boolean17 = body26.newObject("PartDesign::Boolean", "Boolean016")
boolean17.Type = "Fuse"
boolean17.addObjects([body24])
doc.recompute()

boolean18 = body26.newObject("PartDesign::Boolean", "Boolean017")
boolean18.Type = "Fuse"
boolean18.addObjects([body23])
doc.recompute()

boolean19 = body26.newObject("PartDesign::Boolean", "Boolean018")
boolean19.Type = "Fuse"
boolean19.addObjects([body22])
body27 = doc.addObject("PartDesign::Body", "Body026")

# Sketch on XY plane
sketch24 = body27.newObject("Sketcher::SketchObject", "Sketch023")
sketch24.AttachmentSupport = (doc.getObject("XY_Plane026"), [""])
sketch24.MapMode = "FlatFace"
add_polygon(sketch24, [(3, 1), (3, 0), (6, 0), (6, 1)])  # lines 0-3
sketch24.addConstraint(Sketcher.Constraint("Vertical", 0))
sketch24.addConstraint(Sketcher.Constraint("Horizontal", 1))
sketch24.addConstraint(Sketcher.Constraint("Vertical", 2))
sketch24.addConstraint(Sketcher.Constraint("Horizontal", 3))
sketch24.addConstraint(Sketcher.Constraint("PointOnObject", 0, 2, -1))
sketch24.addConstraint(Sketcher.Constraint("DistanceX", 1, 1, 1, 2, 3.0))
sketch24.addConstraint(Sketcher.Constraint("DistanceY", 0, 2, 0, 1, 1.0))
sketch24.addConstraint(Sketcher.Constraint("DistanceX", -1, 1, 0, 2, 3.0))
pad24 = body27.newObject("PartDesign::Pad", "Pad023")
pad24.Profile = sketch24
pad24.Length = 3
body28 = doc.addObject("PartDesign::Body", "Body027")

# Sketch on XY plane
sketch25 = body28.newObject("Sketcher::SketchObject", "Sketch024")
sketch25.AttachmentSupport = (doc.getObject("XY_Plane027"), [""])
sketch25.MapMode = "FlatFace"
add_polygon(sketch25, [(0, 1), (0, 0), (9, 0), (9, 1)])  # lines 0-3
sketch25.addConstraint(Sketcher.Constraint("Vertical", 0))
sketch25.addConstraint(Sketcher.Constraint("Horizontal", 1))
sketch25.addConstraint(Sketcher.Constraint("Vertical", 2))
sketch25.addConstraint(Sketcher.Constraint("Horizontal", 3))
sketch25.addConstraint(Sketcher.Constraint("Coincident", 0, 2, -1, 1))
sketch25.addConstraint(Sketcher.Constraint("DistanceX", 1, 1, 1, 2, 9.0))
sketch25.addConstraint(Sketcher.Constraint("DistanceY", 0, 2, 0, 1, 1.0))
pad25 = body28.newObject("PartDesign::Pad", "Pad024")
pad25.Profile = sketch25
pad25.Length = 4
doc.recompute()

boolean20 = body28.newObject("PartDesign::Boolean", "Boolean019")
boolean20.Type = "Cut"
boolean20.addObjects([body27])
doc.recompute()

boolean21 = body28.newObject("PartDesign::Boolean", "Boolean020")
boolean21.Type = "Fuse"
boolean21.addObjects([body26])
doc.recompute()

boolean22 = body28.newObject("PartDesign::Boolean", "Boolean021")
boolean22.Type = "Fuse"
boolean22.addObjects([body21])
doc.recompute()

boolean23 = body28.newObject("PartDesign::Boolean", "Boolean022")
boolean23.Type = "Fuse"
boolean23.addObjects([body15])
doc.recompute()

boolean24 = body28.newObject("PartDesign::Boolean", "Boolean023")
boolean24.Type = "Fuse"
boolean24.addObjects([body14])
doc.recompute()

boolean25 = body28.newObject("PartDesign::Boolean", "Boolean024")
boolean25.Type = "Fuse"
boolean25.addObjects([body13])
doc.recompute()

boolean26 = body28.newObject("PartDesign::Boolean", "Boolean025")
boolean26.Type = "Fuse"
boolean26.addObjects([body7])
doc.recompute()

boolean27 = body28.newObject("PartDesign::Boolean", "Boolean026")
boolean27.Type = "Fuse"
boolean27.addObjects([body6])

doc.recompute()
